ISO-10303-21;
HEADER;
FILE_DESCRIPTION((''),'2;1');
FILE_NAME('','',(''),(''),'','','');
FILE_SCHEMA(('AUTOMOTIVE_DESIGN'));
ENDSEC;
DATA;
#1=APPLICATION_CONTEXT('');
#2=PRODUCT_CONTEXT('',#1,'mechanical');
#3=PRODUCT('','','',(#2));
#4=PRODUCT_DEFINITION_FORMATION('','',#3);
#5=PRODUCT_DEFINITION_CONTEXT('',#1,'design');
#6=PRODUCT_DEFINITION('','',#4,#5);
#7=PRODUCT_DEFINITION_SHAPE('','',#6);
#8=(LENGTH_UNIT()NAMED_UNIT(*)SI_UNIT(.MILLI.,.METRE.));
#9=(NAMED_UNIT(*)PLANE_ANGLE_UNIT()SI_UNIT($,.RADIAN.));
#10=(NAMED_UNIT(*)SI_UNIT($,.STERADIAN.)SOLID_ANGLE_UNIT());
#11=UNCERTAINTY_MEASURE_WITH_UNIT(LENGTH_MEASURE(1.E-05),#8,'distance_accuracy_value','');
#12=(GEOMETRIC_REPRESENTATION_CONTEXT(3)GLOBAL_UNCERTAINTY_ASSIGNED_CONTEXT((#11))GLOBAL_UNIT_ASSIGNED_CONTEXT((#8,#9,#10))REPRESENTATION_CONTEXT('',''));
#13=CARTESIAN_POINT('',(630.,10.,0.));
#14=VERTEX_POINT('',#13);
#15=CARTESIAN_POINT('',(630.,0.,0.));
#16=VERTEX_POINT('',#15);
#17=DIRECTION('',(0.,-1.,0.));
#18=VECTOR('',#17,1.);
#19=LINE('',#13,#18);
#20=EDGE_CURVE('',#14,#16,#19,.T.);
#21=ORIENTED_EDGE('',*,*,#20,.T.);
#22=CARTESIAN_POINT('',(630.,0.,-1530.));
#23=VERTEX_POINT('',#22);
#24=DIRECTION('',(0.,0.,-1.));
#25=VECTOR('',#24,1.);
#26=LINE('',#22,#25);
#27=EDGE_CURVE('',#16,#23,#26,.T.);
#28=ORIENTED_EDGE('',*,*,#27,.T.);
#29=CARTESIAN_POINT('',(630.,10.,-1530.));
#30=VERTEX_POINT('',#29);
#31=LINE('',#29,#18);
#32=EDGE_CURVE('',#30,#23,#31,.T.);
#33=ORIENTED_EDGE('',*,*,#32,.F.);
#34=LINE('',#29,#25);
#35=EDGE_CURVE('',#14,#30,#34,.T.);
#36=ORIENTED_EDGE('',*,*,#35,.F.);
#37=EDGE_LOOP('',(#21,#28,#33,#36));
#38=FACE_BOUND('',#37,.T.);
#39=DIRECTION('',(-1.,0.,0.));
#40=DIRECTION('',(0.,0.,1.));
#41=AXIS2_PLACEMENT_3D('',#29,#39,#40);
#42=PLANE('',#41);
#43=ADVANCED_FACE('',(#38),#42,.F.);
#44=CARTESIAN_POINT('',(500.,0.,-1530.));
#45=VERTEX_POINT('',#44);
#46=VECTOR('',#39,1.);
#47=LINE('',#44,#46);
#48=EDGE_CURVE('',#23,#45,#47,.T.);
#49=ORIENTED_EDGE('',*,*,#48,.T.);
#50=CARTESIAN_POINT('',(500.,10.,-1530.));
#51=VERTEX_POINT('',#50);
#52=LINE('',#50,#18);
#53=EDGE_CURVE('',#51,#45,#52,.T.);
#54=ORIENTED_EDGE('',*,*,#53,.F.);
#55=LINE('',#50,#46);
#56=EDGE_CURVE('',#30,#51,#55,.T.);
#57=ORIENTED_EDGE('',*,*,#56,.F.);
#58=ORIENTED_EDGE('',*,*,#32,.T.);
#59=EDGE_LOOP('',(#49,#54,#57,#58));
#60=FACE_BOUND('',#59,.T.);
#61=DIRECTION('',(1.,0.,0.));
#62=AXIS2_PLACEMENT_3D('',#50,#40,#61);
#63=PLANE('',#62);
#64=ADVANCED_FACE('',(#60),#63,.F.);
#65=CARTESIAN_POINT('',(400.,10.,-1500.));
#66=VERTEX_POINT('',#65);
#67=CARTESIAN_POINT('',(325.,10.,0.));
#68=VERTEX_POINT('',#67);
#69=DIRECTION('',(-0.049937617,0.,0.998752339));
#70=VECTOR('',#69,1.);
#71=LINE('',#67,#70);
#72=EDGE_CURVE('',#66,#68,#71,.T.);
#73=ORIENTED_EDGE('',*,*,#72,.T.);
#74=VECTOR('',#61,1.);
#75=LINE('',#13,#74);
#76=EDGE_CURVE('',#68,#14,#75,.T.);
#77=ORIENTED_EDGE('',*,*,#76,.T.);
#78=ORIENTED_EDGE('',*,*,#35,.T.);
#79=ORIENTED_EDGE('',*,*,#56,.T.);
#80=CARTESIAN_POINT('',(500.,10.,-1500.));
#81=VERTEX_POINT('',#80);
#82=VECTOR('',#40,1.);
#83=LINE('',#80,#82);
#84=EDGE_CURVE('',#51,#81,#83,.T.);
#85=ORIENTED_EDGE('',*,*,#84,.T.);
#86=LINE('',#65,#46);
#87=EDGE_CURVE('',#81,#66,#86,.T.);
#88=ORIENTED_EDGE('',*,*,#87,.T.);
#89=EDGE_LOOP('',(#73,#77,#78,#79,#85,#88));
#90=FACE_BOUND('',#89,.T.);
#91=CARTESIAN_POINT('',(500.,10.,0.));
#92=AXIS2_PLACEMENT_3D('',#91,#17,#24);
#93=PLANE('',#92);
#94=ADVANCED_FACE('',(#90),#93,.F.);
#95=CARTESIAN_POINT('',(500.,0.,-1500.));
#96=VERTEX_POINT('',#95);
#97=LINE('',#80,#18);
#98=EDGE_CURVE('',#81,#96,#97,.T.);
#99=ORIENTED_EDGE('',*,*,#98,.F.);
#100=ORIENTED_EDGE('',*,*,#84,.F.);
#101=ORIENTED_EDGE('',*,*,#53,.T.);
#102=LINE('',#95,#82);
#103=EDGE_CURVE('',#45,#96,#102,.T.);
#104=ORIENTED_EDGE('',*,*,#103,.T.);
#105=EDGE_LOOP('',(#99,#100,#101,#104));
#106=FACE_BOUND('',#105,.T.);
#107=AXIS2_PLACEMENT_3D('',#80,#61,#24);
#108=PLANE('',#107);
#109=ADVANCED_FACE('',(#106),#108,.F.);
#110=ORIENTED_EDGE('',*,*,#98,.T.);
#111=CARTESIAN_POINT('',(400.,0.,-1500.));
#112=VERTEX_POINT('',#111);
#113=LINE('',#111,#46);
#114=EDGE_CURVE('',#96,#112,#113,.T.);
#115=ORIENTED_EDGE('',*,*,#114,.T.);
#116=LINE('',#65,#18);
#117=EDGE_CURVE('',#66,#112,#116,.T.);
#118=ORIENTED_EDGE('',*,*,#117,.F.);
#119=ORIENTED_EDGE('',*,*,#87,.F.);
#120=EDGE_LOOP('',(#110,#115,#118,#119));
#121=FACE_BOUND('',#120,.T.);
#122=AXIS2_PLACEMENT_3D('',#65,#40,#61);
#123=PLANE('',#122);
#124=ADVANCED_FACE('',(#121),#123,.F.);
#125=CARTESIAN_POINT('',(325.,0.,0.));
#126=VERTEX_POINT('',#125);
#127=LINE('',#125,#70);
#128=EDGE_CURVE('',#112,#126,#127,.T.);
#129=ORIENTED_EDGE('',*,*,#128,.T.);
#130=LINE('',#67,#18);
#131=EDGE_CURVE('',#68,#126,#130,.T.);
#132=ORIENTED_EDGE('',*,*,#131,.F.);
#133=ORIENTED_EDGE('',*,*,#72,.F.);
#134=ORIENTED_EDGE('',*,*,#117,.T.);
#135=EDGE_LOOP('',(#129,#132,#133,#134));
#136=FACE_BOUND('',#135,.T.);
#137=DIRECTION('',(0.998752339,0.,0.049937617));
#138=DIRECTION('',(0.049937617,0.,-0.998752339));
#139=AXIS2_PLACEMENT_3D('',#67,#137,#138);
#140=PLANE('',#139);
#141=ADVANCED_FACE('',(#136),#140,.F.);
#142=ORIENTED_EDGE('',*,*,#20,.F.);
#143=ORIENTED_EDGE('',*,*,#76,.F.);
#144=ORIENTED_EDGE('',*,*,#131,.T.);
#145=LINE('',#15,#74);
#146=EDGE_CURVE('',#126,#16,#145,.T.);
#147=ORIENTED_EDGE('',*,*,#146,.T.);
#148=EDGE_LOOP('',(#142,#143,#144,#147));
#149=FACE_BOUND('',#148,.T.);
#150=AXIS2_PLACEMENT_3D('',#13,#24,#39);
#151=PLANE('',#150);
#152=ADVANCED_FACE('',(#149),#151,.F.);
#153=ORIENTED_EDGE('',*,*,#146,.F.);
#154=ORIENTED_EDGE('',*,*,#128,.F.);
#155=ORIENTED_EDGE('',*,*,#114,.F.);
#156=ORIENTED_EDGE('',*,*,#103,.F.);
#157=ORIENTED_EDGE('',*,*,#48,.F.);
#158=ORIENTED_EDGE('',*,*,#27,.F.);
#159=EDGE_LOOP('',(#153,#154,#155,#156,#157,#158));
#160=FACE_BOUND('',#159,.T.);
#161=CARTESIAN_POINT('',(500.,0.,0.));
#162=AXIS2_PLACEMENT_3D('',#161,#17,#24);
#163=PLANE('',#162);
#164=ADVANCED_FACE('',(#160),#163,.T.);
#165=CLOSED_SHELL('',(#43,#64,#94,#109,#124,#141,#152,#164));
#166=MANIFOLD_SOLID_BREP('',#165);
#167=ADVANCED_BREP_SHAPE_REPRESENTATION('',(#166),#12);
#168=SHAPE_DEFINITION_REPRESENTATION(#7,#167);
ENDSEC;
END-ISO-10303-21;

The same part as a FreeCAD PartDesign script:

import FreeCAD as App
import Part
import Sketcher

V = App.Vector
Q = App.Units.Quantity


def add_polygon(sketch, points):
    """Adds a closed chain of lines whose ends are joined by coincident constraints."""
    first, n = sketch.GeometryCount, len(points)
    for a, b in zip(points, points[1:] + points[:1]):
        sketch.addGeometry(Part.LineSegment(App.Vector(*a, 0), App.Vector(*b, 0)), False)
    for i in range(n):
        sketch.addConstraint(Sketcher.Constraint("Coincident", first + i, 2, first + (i + 1) % n, 1))

doc = App.newDocument("Part")
params = doc.addObject("Spreadsheet::Sheet", "Params")
for row, (alias, value) in enumerate([
    ("sketch1_width", "305 mm"),
    ("sketch1_width2", "130 mm"),
    ("sketch1_width3", "100 mm"),
    ("sketch1_height", "1530 mm"),
    ("sketch1_height2", "30 mm"),
    ("pad1_length", "10 mm"),
], start=1):
    params.set(f"A{row}", alias)
    params.set(f"B{row}", "=" + value)
    params.setAlias(f"B{row}", alias)

body = doc.addObject("PartDesign::Body", "Body")

sketch1 = body.newObject("Sketcher::SketchObject", "Sketch")
sketch1.AttachmentSupport = (doc.getObject("XZ_Plane"), [""])
sketch1.MapMode = "FlatFace"
add_polygon(sketch1, [(400, -1500), (325, 0), (630, 0), (630, -1530), (500, -1530), (500, -1500)])
sketch1.addConstraint(Sketcher.Constraint("Horizontal", 1))
sketch1.addConstraint(Sketcher.Constraint("Vertical", 2))
sketch1.addConstraint(Sketcher.Constraint("Horizontal", 3))
sketch1.addConstraint(Sketcher.Constraint("Vertical", 4))
sketch1.addConstraint(Sketcher.Constraint("Horizontal", 5))
sketch1.addConstraint(Sketcher.Constraint("PointOnObject", 0, 2, -1))
sketch1.addConstraint(Sketcher.Constraint("DistanceX", 1, 1, 1, 2, Q("305 mm")))
sketch1.addConstraint(Sketcher.Constraint("DistanceX", 3, 2, 3, 1, Q("130 mm")))
sketch1.addConstraint(Sketcher.Constraint("DistanceX", 5, 2, 5, 1, Q("100 mm")))
sketch1.addConstraint(Sketcher.Constraint("DistanceY", 2, 2, 2, 1, Q("1530 mm")))
sketch1.addConstraint(Sketcher.Constraint("DistanceY", 4, 1, 4, 2, Q("30 mm")))
sketch1.addConstraint(Sketcher.Constraint("DistanceX", -1, 1, 0, 2, Q("325 mm")))
sketch1.setExpression("Constraints[12]", "Params.sketch1_width")
sketch1.setExpression("Constraints[13]", "Params.sketch1_width2")
sketch1.setExpression("Constraints[14]", "Params.sketch1_width3")
sketch1.setExpression("Constraints[15]", "Params.sketch1_height")
sketch1.setExpression("Constraints[16]", "Params.sketch1_height2")
pad1 = body.newObject("PartDesign::Pad", "Pad")
pad1.Profile = sketch1
pad1.setExpression("Length", "Params.pad1_length")
pad1.Reversed = True

doc.recompute()
